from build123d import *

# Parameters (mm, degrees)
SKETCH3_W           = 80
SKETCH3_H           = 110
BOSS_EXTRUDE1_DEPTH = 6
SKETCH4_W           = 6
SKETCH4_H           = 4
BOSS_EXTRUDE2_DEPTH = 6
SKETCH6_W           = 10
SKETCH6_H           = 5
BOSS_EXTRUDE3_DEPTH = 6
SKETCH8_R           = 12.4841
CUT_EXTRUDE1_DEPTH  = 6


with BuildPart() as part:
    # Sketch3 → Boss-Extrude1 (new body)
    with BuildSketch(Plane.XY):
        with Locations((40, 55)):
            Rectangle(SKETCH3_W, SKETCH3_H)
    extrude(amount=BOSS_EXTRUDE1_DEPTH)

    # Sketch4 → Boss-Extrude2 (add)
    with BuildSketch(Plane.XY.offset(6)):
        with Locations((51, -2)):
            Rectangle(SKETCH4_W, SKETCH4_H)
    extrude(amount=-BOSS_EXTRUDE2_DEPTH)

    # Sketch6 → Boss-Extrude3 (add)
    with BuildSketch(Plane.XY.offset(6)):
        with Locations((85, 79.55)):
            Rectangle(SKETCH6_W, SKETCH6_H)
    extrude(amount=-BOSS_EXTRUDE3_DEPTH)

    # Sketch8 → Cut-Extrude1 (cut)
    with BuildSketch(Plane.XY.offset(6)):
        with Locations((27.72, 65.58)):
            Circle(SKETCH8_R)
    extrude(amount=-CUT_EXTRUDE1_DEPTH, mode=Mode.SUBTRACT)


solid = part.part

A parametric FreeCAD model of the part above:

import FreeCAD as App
import Part
import Sketcher

doc = App.newDocument("Part")
body = doc.addObject("PartDesign::Body", "Body")

# Sketch on XY plane
sketch1 = body.newObject("Sketcher::SketchObject", "Sketch")
sketch1.AttachmentSupport = (doc.getObject("XY_Plane"), [""])
sketch1.MapMode = "FlatFace"
sketch1.addGeometry(Part.LineSegment(App.Vector(0, 110, 0), App.Vector(0, 0, 0)), False)
sketch1.addGeometry(Part.LineSegment(App.Vector(0, 0, 0), App.Vector(80, 0, 0)), False)
sketch1.addGeometry(Part.LineSegment(App.Vector(80, 0, 0), App.Vector(80, 110, 0)), False)
sketch1.addGeometry(Part.LineSegment(App.Vector(80, 110, 0), App.Vector(0, 110, 0)), False)
sketch1.addConstraint(Sketcher.Constraint("Coincident", 0, 2, 1, 1))
sketch1.addConstraint(Sketcher.Constraint("Coincident", 1, 2, 2, 1))
sketch1.addConstraint(Sketcher.Constraint("Coincident", 2, 2, 3, 1))
sketch1.addConstraint(Sketcher.Constraint("Coincident", 3, 2, 0, 1))
sketch1.addConstraint(Sketcher.Constraint("Vertical", 0))
sketch1.addConstraint(Sketcher.Constraint("Horizontal", 1))
sketch1.addConstraint(Sketcher.Constraint("Vertical", 2))
sketch1.addConstraint(Sketcher.Constraint("Horizontal", 3))
sketch1.addConstraint(Sketcher.Constraint("Coincident", 0, 2, -1, 1))
sketch1.addConstraint(Sketcher.Constraint("DistanceX", 1, 1, 1, 2, 80.0))
sketch1.addConstraint(Sketcher.Constraint("DistanceY", 0, 2, 0, 1, 110.0))
pad1 = body.newObject("PartDesign::Pad", "Pad")
pad1.Profile = sketch1
pad1.Length = 6

# Sketch on XY plane
sketch2 = body.newObject("Sketcher::SketchObject", "Sketch001")
sketch2.AttachmentSupport = (doc.getObject("XY_Plane"), [""])
sketch2.MapMode = "FlatFace"
sketch2.AttachmentOffset = App.Placement(App.Vector(0, 0, 6), App.Rotation())
sketch2.addGeometry(Part.LineSegment(App.Vector(48, 0, 0), App.Vector(48, -4, 0)), False)
sketch2.addGeometry(Part.LineSegment(App.Vector(48, -4, 0), App.Vector(54, -4, 0)), False)
sketch2.addGeometry(Part.LineSegment(App.Vector(54, -4, 0), App.Vector(54, 0, 0)), False)
sketch2.addGeometry(Part.LineSegment(App.Vector(54, 0, 0), App.Vector(48, 0, 0)), False)
sketch2.addConstraint(Sketcher.Constraint("Coincident", 0, 2, 1, 1))
sketch2.addConstraint(Sketcher.Constraint("Coincident", 1, 2, 2, 1))
sketch2.addConstraint(Sketcher.Constraint("Coincident", 2, 2, 3, 1))
sketch2.addConstraint(Sketcher.Constraint("Coincident", 3, 2, 0, 1))
sketch2.addConstraint(Sketcher.Constraint("Vertical", 0))
sketch2.addConstraint(Sketcher.Constraint("Horizontal", 1))
sketch2.addConstraint(Sketcher.Constraint("Vertical", 2))
sketch2.addConstraint(Sketcher.Constraint("Horizontal", 3))
sketch2.addConstraint(Sketcher.Constraint("PointOnObject", 2, 2, -1))
sketch2.addConstraint(Sketcher.Constraint("DistanceX", 1, 1, 1, 2, 6.0))
sketch2.addConstraint(Sketcher.Constraint("DistanceY", 0, 2, 0, 1, 4.0))
sketch2.addConstraint(Sketcher.Constraint("DistanceX", -1, 1, 0, 2, 48.0))
pad2 = body.newObject("PartDesign::Pad", "Pad001")
pad2.Profile = sketch2
pad2.Length = 6
pad2.Reversed = True

# Sketch on XY plane
sketch3 = body.newObject("Sketcher::SketchObject", "Sketch002")
sketch3.AttachmentSupport = (doc.getObject("XY_Plane"), [""])
sketch3.MapMode = "FlatFace"
sketch3.AttachmentOffset = App.Placement(App.Vector(0, 0, 6), App.Rotation())
sketch3.addGeometry(Part.LineSegment(App.Vector(80, 82, 0), App.Vector(80, 77, 0)), False)
sketch3.addGeometry(Part.LineSegment(App.Vector(80, 77, 0), App.Vector(90, 77, 0)), False)
sketch3.addGeometry(Part.LineSegment(App.Vector(90, 77, 0), App.Vector(90, 82, 0)), False)
sketch3.addGeometry(Part.LineSegment(App.Vector(90, 82, 0), App.Vector(80, 82, 0)), False)
sketch3.addConstraint(Sketcher.Constraint("Coincident", 0, 2, 1, 1))
sketch3.addConstraint(Sketcher.Constraint("Coincident", 1, 2, 2, 1))
sketch3.addConstraint(Sketcher.Constraint("Coincident", 2, 2, 3, 1))
sketch3.addConstraint(Sketcher.Constraint("Coincident", 3, 2, 0, 1))
sketch3.addConstraint(Sketcher.Constraint("Vertical", 0))
sketch3.addConstraint(Sketcher.Constraint("Horizontal", 1))
sketch3.addConstraint(Sketcher.Constraint("Vertical", 2))
sketch3.addConstraint(Sketcher.Constraint("Horizontal", 3))
sketch3.addConstraint(Sketcher.Constraint("DistanceX", 1, 1, 1, 2, 10.0))
sketch3.addConstraint(Sketcher.Constraint("DistanceY", 0, 2, 0, 1, 5.0))
sketch3.addConstraint(Sketcher.Constraint("DistanceX", -1, 1, 0, 2, 80.0))
sketch3.addConstraint(Sketcher.Constraint("DistanceY", -1, 1, 0, 2, 77.05))
pad3 = body.newObject("PartDesign::Pad", "Pad002")
pad3.Profile = sketch3
pad3.Length = 6
pad3.Reversed = True

# Sketch on XY plane
sketch4 = body.newObject("Sketcher::SketchObject", "Sketch003")
sketch4.AttachmentSupport = (doc.getObject("XY_Plane"), [""])
sketch4.MapMode = "FlatFace"
sketch4.AttachmentOffset = App.Placement(App.Vector(0, 0, 6), App.Rotation())
sketch4.addGeometry(Part.Circle(App.Vector(28, 66, 0), App.Vector(0, 0, 1), 12), False)
sketch4.addConstraint(Sketcher.Constraint("Diameter", 0, 24.9682))
sketch4.addConstraint(Sketcher.Constraint("DistanceX", -1, 1, 0, 3, 27.72))
sketch4.addConstraint(Sketcher.Constraint("DistanceY", -1, 1, 0, 3, 65.58))
pocket1 = body.newObject("PartDesign::Pocket", "Pocket")
pocket1.Profile = sketch4
pocket1.Length = 6

doc.recompute()
